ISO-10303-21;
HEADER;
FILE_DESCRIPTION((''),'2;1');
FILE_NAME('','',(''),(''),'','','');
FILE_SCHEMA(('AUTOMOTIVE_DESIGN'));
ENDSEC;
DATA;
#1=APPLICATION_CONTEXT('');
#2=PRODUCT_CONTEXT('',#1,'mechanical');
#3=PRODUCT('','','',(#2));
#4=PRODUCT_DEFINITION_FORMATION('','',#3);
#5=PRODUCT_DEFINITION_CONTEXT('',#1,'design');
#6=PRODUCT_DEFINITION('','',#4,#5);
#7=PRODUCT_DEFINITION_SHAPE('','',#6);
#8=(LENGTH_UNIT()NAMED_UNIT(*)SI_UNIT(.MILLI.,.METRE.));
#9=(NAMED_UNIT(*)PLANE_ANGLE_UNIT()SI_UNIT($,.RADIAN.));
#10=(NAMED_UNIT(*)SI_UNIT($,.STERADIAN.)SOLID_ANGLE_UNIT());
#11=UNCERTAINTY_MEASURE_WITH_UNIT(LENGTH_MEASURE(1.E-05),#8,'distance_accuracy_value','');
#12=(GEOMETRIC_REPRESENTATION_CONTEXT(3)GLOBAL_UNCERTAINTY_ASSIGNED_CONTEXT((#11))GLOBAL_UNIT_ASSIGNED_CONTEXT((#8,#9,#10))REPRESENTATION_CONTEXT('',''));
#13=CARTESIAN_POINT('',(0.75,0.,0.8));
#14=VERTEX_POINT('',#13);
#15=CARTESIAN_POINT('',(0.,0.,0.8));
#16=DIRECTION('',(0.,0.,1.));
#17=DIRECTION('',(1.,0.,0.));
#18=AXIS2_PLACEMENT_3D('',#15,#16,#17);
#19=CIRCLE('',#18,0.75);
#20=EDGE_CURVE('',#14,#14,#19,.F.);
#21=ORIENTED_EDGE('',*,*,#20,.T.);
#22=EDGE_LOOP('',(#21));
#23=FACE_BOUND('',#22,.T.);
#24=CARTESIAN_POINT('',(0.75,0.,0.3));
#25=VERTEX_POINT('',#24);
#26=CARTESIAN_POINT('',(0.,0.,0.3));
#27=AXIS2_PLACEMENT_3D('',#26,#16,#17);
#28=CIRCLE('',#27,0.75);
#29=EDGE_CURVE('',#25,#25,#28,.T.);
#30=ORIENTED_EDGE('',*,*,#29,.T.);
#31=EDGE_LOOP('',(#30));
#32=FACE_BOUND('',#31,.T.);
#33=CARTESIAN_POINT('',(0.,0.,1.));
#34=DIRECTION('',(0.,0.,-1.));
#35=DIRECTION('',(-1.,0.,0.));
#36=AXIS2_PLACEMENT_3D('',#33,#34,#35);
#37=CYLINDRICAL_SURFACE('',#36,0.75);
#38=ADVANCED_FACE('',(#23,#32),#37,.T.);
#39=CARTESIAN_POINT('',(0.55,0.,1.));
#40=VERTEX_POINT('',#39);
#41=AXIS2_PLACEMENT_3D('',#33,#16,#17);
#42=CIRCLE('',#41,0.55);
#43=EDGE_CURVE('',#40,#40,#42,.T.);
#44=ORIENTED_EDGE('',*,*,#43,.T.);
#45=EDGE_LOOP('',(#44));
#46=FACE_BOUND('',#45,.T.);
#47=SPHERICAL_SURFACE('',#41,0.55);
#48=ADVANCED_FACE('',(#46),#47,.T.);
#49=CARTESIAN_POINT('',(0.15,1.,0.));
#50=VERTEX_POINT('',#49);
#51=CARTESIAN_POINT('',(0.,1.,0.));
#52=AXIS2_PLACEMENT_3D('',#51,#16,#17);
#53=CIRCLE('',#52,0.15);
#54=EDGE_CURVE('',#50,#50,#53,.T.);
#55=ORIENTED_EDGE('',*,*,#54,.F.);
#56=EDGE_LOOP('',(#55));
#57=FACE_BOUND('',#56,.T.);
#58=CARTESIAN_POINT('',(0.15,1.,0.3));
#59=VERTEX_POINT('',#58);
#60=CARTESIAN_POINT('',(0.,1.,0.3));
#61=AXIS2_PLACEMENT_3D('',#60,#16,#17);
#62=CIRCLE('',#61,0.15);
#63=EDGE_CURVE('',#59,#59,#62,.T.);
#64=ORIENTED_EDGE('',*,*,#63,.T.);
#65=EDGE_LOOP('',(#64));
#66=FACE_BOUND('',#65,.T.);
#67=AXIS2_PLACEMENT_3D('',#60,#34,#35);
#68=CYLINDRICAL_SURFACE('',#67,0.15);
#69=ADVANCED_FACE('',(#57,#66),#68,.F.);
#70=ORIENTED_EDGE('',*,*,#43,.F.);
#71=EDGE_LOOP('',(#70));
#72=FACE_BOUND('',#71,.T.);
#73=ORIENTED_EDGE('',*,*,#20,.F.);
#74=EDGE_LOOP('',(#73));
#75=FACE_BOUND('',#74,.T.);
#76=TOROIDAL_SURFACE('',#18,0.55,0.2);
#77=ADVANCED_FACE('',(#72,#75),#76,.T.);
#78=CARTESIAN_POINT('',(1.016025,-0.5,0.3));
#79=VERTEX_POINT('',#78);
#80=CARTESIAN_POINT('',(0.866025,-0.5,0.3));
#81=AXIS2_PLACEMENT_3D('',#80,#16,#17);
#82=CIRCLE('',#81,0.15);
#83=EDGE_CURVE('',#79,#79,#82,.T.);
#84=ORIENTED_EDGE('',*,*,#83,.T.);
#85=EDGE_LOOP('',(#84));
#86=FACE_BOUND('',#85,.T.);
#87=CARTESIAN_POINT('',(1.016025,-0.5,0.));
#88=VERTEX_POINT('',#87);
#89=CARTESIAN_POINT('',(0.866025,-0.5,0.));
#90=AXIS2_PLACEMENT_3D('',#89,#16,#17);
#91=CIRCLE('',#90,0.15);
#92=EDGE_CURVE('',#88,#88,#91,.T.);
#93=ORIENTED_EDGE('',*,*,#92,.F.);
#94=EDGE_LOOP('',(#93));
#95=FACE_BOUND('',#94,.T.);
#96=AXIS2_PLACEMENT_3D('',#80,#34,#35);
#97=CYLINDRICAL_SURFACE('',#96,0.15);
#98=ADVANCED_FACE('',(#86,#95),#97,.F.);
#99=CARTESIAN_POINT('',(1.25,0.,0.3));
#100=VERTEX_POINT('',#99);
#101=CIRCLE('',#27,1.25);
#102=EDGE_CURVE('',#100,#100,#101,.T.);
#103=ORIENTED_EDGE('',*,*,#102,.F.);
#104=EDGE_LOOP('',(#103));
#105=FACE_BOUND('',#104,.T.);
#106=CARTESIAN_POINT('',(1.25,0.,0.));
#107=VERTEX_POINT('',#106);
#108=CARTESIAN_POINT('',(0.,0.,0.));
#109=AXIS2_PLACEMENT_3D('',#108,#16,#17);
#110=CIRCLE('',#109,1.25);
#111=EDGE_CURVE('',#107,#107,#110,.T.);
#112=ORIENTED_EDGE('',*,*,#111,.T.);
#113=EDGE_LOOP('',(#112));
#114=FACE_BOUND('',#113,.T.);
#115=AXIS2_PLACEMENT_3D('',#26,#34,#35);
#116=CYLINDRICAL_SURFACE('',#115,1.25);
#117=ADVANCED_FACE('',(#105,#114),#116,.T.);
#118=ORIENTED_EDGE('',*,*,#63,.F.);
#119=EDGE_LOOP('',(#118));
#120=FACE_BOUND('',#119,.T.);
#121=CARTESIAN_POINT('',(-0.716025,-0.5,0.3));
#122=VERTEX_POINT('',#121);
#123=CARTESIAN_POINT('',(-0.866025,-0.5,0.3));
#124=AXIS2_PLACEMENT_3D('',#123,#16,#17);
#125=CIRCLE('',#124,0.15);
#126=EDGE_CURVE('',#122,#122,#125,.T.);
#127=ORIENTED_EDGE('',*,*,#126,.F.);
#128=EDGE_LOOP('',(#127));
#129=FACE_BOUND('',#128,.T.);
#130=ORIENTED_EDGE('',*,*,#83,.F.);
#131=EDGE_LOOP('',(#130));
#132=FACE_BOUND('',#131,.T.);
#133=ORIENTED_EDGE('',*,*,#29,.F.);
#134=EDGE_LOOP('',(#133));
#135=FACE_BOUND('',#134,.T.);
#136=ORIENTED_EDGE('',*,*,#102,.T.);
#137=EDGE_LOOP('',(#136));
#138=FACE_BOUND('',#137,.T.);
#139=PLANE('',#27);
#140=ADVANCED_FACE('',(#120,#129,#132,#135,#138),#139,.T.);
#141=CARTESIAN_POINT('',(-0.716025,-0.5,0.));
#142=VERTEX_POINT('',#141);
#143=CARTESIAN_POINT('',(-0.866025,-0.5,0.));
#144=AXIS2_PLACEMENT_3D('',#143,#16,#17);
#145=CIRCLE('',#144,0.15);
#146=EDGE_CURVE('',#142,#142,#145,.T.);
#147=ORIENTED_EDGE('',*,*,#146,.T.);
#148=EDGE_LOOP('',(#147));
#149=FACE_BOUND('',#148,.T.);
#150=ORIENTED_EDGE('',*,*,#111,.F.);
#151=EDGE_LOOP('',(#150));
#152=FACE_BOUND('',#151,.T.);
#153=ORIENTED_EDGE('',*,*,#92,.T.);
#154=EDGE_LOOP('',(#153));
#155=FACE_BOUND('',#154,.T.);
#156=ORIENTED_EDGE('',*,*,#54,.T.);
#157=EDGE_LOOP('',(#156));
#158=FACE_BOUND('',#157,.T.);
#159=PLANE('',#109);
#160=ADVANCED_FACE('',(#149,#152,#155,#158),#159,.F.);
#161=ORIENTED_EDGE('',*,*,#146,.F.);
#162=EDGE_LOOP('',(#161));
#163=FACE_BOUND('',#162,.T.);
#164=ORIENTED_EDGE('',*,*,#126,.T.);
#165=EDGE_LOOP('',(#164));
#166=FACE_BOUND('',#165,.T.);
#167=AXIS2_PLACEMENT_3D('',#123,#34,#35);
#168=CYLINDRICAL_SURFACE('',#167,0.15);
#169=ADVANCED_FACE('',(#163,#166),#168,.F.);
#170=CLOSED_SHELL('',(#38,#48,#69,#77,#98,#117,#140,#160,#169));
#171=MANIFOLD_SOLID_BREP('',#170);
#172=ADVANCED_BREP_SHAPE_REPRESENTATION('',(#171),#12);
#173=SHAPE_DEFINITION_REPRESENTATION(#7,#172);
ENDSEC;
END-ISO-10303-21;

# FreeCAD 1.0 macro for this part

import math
import FreeCAD as App
import Part
import Sketcher

V = App.Vector


def edges_at(feature, points):
    """Names of the edges that pass closest to the given points."""
    edges = feature.Shape.Edges
    near = lambda p: min(range(len(edges)), key=lambda i: edges[i].distToShape(Part.Vertex(*p))[0])
    return sorted({f"Edge{near(p) + 1}" for p in points})

doc = App.newDocument("Part")
params = doc.addObject("Spreadsheet::Sheet", "Params")
for row, (alias, value) in enumerate([
    ("sketch1_diameter", "2.5 mm"),
    ("sketch1_diameter2", "0.3 mm"),
    ("pad1_length", "0.3 mm"),
    ("sketch2_diameter", "1.5 mm"),
    ("pad2_length", "0.7 mm"),
    ("fillet_radius", "0.2 mm"),
    ("sketch3_radius", "0.55 mm"),
    ("revolution_angle", "360 deg"),
], start=1):
    params.set(f"A{row}", alias)
    params.set(f"B{row}", "=" + value)
    params.setAlias(f"B{row}", alias)

body = doc.addObject("PartDesign::Body", "Body")

sketch1 = body.newObject("Sketcher::SketchObject", "Sketch")
sketch1.AttachmentSupport = (doc.getObject("XY_Plane"), [""])
sketch1.MapMode = "FlatFace"
sketch1.addGeometry([
    Part.Circle(V(0, 0, 0), V(0, 0, 1), 1.25),
    Part.Circle(V(-0.87, -0.5, 0), V(0, 0, 1), 0.15),
    Part.Circle(V(0.87, -0.5, 0), V(0, 0, 1), 0.15),
    Part.Circle(V(0, 1, 0), V(0, 0, 1), 0.15),
], False)
sketch1.addConstraint([
    Sketcher.Constraint("Coincident", 0, 3, -1, 1),
    Sketcher.Constraint("Equal", 1, 2),
    Sketcher.Constraint("Equal", 2, 3),
    Sketcher.Constraint("Symmetric", 1, 3, 2, 3, -2),
    Sketcher.Constraint("PointOnObject", 3, 3, -2),
    Sketcher.Constraint("Diameter", 0, 2.5),
    Sketcher.Constraint("Diameter", 1, 0.3),
    Sketcher.Constraint("DistanceY", -1, 1, 3, 3, 1.0),
    Sketcher.Constraint("DistanceY", 1, 3, -1, 1, 0.5),
    Sketcher.Constraint("DistanceX", 1, 3, 2, 3, 1.732051),
])
sketch1.setExpression("Constraints[5]", "Params.sketch1_diameter")
sketch1.setExpression("Constraints[6]", "Params.sketch1_diameter2")
pad1 = body.newObject("PartDesign::Pad", "Pad")
pad1.Profile = sketch1
pad1.setExpression("Length", "Params.pad1_length")

sketch2 = body.newObject("Sketcher::SketchObject", "Sketch001")
sketch2.AttachmentSupport = (doc.getObject("XY_Plane"), [""])
sketch2.MapMode = "FlatFace"
sketch2.AttachmentOffset = App.Placement(V(0, 0, 0.3), App.Rotation())
sketch2.addGeometry(Part.Circle(V(0, 0, 0), V(0, 0, 1), 0.8), False)
sketch2.addConstraint([
    Sketcher.Constraint("Coincident", 0, 3, -1, 1),
    Sketcher.Constraint("Diameter", 0, 1.5),
])
sketch2.setExpression("Constraints[1]", "Params.sketch2_diameter")
pad2 = body.newObject("PartDesign::Pad", "Pad001")
pad2.Profile = sketch2
pad2.setExpression("Length", "Params.pad2_length")
doc.recompute()

fillet = body.newObject("PartDesign::Fillet", "Fillet")
fillet.Base = (pad2, edges_at(pad2, [(-0.75, 0, 1)]))
fillet.setExpression("Radius", "Params.fillet_radius")

sketch3 = body.newObject("Sketcher::SketchObject", "Sketch002")
sketch3.AttachmentSupport = (doc.getObject("XY_Plane"), [""])
sketch3.MapMode = "FlatFace"
sketch3.AttachmentOffset = App.Placement(V(0, 0, 1), App.Rotation())
sketch3.addGeometry([
    Part.LineSegment(V(-0.6, 0, 0), V(0.6, 0, 0)),
    Part.ArcOfCircle(Part.Circle(V(0, 0, 0), V(0, 0, 1), 0.6), math.radians(0), math.radians(180)),
], False)
sketch3.addConstraint([
    Sketcher.Constraint("Coincident", 0, 1, 1, 2),
    Sketcher.Constraint("Coincident", 1, 1, 0, 2),
    Sketcher.Constraint("Horizontal", 0),
    Sketcher.Constraint("Coincident", 1, 3, -1, 1),
    Sketcher.Constraint("PointOnObject", 0, 1, -1),
    Sketcher.Constraint("Radius", 1, 0.55),
])
sketch3.setExpression("Constraints[5]", "Params.sketch3_radius")
revolution = body.newObject("PartDesign::Revolution", "Revolution")
revolution.Profile = sketch3
revolution.ReferenceAxis = (sketch3, ["H_Axis"])
revolution.setExpression("Angle", "Params.revolution_angle")

doc.recompute()
